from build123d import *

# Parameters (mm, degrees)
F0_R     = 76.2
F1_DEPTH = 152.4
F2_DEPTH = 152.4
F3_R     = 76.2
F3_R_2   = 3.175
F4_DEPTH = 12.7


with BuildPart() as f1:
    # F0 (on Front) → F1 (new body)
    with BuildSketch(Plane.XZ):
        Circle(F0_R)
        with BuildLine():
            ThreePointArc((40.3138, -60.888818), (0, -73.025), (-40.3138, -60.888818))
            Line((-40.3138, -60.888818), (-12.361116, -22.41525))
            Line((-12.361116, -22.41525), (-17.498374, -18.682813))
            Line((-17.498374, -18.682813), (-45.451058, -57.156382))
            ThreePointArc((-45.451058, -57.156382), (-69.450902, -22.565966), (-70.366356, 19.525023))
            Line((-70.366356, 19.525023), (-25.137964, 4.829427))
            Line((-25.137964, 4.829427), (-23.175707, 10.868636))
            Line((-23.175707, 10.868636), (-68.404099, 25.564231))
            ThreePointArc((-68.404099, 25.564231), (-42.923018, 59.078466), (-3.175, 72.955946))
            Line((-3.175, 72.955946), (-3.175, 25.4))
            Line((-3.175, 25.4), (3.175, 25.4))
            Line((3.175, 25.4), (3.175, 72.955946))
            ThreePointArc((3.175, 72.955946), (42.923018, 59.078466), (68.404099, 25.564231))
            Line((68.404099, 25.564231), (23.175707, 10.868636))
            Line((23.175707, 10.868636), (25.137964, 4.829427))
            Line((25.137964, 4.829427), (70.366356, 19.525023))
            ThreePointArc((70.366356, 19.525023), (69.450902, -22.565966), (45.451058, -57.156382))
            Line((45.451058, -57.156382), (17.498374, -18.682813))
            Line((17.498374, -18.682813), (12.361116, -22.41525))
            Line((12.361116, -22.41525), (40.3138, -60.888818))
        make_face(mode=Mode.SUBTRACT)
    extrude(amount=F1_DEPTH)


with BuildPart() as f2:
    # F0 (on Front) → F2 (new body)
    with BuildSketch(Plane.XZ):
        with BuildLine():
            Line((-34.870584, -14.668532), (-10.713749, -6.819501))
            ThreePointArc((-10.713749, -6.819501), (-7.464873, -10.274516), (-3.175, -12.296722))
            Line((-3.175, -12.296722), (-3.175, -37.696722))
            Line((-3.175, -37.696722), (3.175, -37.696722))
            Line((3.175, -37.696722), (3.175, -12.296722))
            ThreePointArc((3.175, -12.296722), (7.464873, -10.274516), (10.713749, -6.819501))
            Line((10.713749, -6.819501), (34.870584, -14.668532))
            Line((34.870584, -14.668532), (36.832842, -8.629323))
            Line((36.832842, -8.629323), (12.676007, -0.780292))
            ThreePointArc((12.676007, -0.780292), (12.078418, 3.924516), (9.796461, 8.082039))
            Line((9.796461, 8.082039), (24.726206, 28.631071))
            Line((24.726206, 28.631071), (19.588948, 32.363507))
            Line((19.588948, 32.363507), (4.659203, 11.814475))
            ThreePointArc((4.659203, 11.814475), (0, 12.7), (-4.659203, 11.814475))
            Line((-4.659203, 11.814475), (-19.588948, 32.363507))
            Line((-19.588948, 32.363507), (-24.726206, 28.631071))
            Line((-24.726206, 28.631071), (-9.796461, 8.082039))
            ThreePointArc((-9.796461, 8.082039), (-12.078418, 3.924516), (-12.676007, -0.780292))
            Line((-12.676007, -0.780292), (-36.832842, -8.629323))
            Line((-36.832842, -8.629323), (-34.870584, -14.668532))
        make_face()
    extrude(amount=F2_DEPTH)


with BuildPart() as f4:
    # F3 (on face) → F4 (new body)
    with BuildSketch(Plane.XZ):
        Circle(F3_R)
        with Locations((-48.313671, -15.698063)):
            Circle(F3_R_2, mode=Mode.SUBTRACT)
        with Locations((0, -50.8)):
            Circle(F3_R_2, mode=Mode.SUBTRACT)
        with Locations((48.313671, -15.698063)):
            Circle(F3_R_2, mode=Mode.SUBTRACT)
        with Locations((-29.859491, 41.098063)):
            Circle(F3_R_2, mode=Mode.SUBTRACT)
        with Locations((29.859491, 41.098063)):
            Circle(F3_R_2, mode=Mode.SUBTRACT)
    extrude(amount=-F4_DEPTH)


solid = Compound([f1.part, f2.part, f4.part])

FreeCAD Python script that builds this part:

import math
import FreeCAD as App
import Part
import Sketcher
from FreeCAD import Vector
Q = App.Units.Quantity

doc = App.newDocument("Part")
params = doc.addObject("Spreadsheet::Sheet", "Params")
for row, (alias, value) in enumerate([
    ("sketch1_diameter", "6 in"),
    ("sketch1_radius", "2.875 in"),
    ("sketch1_width", "0.25 in"),
    ("sketch1_length", "0.25 in"),
    ("pad1_length", "6 in"),
    ("sketch2_radius", "0.4999999 in"),
    ("sketch2_radius2", "0.4999998 in"),
    ("sketch2_height", "1 in"),
    ("sketch2_length", "1 in"),
    ("sketch2_width", "0.25 in"),
    ("pad2_length", "6 in"),
    ("sketch3_diameter", "6 in"),
    ("sketch3_diameter2", "0.25 in"),
    ("pad3_length", "0.5 in"),
], start=1):
    params.set(f"A{row}", alias)
    params.set(f"B{row}", "=" + value)
    params.setAlias(f"B{row}", alias)

body = doc.addObject("PartDesign::Body", "Body")

# Sketch on XZ plane
sketch1 = doc.addObject("Sketcher::SketchObject", "Sketch")
body.addObject(sketch1)
sketch1.AttachmentSupport = (doc.XZ_Plane, [""])
sketch1.MapMode = "FlatFace"
sketch1.addGeometry([
    Part.Circle(Vector(0, 0, 0), Vector(0, 0, 1), 76),  # 0
    Part.LineSegment(Vector(12, -22, 0), Vector(40, -61, 0)),  # 1
    Part.ArcOfCircle(Part.Circle(Vector(0, 0, 0), Vector(0, 0, 1), 73), math.radians(-124), math.radians(-56)),  # 2
    Part.LineSegment(Vector(-40, -61, 0), Vector(-12, -22, 0)),  # 3
    Part.LineSegment(Vector(-12, -22, 0), Vector(-17, -19, 0)),  # 4
    Part.LineSegment(Vector(-17, -19, 0), Vector(-45, -57, 0)),  # 5
    Part.ArcOfCircle(Part.Circle(Vector(0, 0, 0), Vector(0, 0, 1), 73), math.radians(164), math.radians(232)),  # 6
    Part.LineSegment(Vector(-70, 20, 0), Vector(-25, 5, 0)),  # 7
    Part.LineSegment(Vector(-25, 5, 0), Vector(-23, 11, 0)),  # 8
    Part.LineSegment(Vector(-23, 11, 0), Vector(-68, 26, 0)),  # 9
    Part.ArcOfCircle(Part.Circle(Vector(0, 0, 0), Vector(0, 0, 1), 73), math.radians(92), math.radians(160)),  # 10
    Part.LineSegment(Vector(-3, 73, 0), Vector(-3, 25, 0)),  # 11
    Part.LineSegment(Vector(-3, 25, 0), Vector(3, 25, 0)),  # 12
    Part.LineSegment(Vector(3, 25, 0), Vector(3, 73, 0)),  # 13
    Part.ArcOfCircle(Part.Circle(Vector(0, 0, 0), Vector(0, 0, 1), 73), math.radians(20), math.radians(88)),  # 14
    Part.LineSegment(Vector(68, 26, 0), Vector(23, 11, 0)),  # 15
    Part.LineSegment(Vector(23, 11, 0), Vector(25, 5, 0)),  # 16
    Part.LineSegment(Vector(25, 5, 0), Vector(70, 20, 0)),  # 17
    Part.ArcOfCircle(Part.Circle(Vector(0, 0, 0), Vector(0, 0, 1), 73), math.radians(-52), math.radians(16)),  # 18
    Part.LineSegment(Vector(45, -57, 0), Vector(17, -19, 0)),  # 19
    Part.LineSegment(Vector(17, -19, 0), Vector(12, -22, 0)),  # 20
], False)
sketch1.addConstraint([
    Sketcher.Constraint("Coincident", 1, 2, 2, 2),
    Sketcher.Constraint("Coincident", 2, 1, 3, 1),
    Sketcher.Constraint("Coincident", 3, 2, 4, 1),
    Sketcher.Constraint("Coincident", 4, 2, 5, 1),
    Sketcher.Constraint("Coincident", 5, 2, 6, 2),
    Sketcher.Constraint("Coincident", 6, 1, 7, 1),
    Sketcher.Constraint("Coincident", 7, 2, 8, 1),
    Sketcher.Constraint("Coincident", 8, 2, 9, 1),
    Sketcher.Constraint("Coincident", 9, 2, 10, 2),
    Sketcher.Constraint("Coincident", 10, 1, 11, 1),
    Sketcher.Constraint("Coincident", 11, 2, 12, 1),
    Sketcher.Constraint("Coincident", 12, 2, 13, 1),
    Sketcher.Constraint("Coincident", 13, 2, 14, 2),
    Sketcher.Constraint("Coincident", 14, 1, 15, 1),
    Sketcher.Constraint("Coincident", 15, 2, 16, 1),
    Sketcher.Constraint("Coincident", 16, 2, 17, 1),
    Sketcher.Constraint("Coincident", 17, 2, 18, 2),
    Sketcher.Constraint("Coincident", 18, 1, 19, 1),
    Sketcher.Constraint("Coincident", 19, 2, 20, 1),
    Sketcher.Constraint("Coincident", 20, 2, 1, 1),
    Sketcher.Constraint("Vertical", 11),
    Sketcher.Constraint("Horizontal", 12),
    Sketcher.Constraint("Vertical", 13),
    Sketcher.Constraint("Coincident", 0, 3, -1, 1),
    Sketcher.Constraint("Coincident", 2, 3, -1, 1),
    Sketcher.Constraint("Coincident", 6, 3, -1, 1),
    Sketcher.Constraint("Coincident", 10, 3, -1, 1),
    Sketcher.Constraint("Coincident", 14, 3, -1, 1),
    Sketcher.Constraint("Coincident", 18, 3, -1, 1),
    Sketcher.Constraint("Equal", 2, 6),
    Sketcher.Constraint("Equal", 6, 10),
    Sketcher.Constraint("Equal", 10, 14),
    Sketcher.Constraint("Equal", 14, 18),
    Sketcher.Constraint("Symmetric", 8, 2, 15, 2, -2),
    Sketcher.Constraint("Symmetric", 7, 2, 16, 2, -2),
    Sketcher.Constraint("Symmetric", 4, 2, 19, 2, -2),
    Sketcher.Constraint("Symmetric", 3, 2, 20, 2, -2),
    Sketcher.Constraint("Perpendicular", 3, 4),
    Sketcher.Constraint("Perpendicular", 4, 5),
    Sketcher.Constraint("Perpendicular", 7, 8),
    Sketcher.Constraint("Perpendicular", 8, 9),
    Sketcher.Constraint("Perpendicular", 15, 16),
    Sketcher.Constraint("Perpendicular", 16, 17),
    Sketcher.Constraint("Parallel", 1, 19),
    Sketcher.Constraint("Perpendicular", 19, 20),
    Sketcher.Constraint("Horizontal", 10, 1, 13, 2),
    Sketcher.Constraint("Equal", 3, 5),
    Sketcher.Constraint("Equal", 5, 7),
    Sketcher.Constraint("Equal", 4, 8),
    Sketcher.Constraint("Equal", 7, 9),
    Sketcher.Constraint("Diameter", 0, Q("6 in")),
    Sketcher.Constraint("DistanceY", -1, 1, 11, 2, Q("1 in")),
    Sketcher.Constraint("Angle", 1, Q("-53.999999 deg")),
    Sketcher.Constraint("Angle", 7, Q("-18.000001 deg")),
    Sketcher.Constraint("Radius", 2, Q("2.875 in")),
    Sketcher.Constraint("DistanceX", 12, 1, 12, 2, Q("0.25 in")),
    Sketcher.Constraint("Distance", 4, Q("0.25 in")),
    Sketcher.Constraint("DistanceY", 3, 2, -1, 1, 22.41525),
])
sketch1.setExpression("Constraints[50]", "Params.sketch1_diameter")
sketch1.setExpression("Constraints[54]", "Params.sketch1_radius")
sketch1.setExpression("Constraints[55]", "Params.sketch1_width")
sketch1.setExpression("Constraints[56]", "Params.sketch1_length")
pad1 = doc.addObject("PartDesign::Pad", "Pad")
body.addObject(pad1)
pad1.Profile = sketch1
pad1.setExpression("Length", "Params.pad1_length")
body2 = doc.addObject("PartDesign::Body", "Body001")

# Sketch on XZ plane
sketch2 = doc.addObject("Sketcher::SketchObject", "Sketch001")
body2.addObject(sketch2)
sketch2.AttachmentSupport = (doc.getObject("XZ_Plane001"), [""])
sketch2.MapMode = "FlatFace"
sketch2.addGeometry([
    Part.LineSegment(Vector(-35, -15, 0), Vector(-11, -7, 0)),  # 0
    Part.ArcOfCircle(Part.Circle(Vector(0, 0, 0), Vector(0, 0, 1), 13), math.radians(-148), math.radians(-104)),  # 1
    Part.LineSegment(Vector(-3, -12, 0), Vector(-3, -38, 0)),  # 2
    Part.LineSegment(Vector(-3, -38, 0), Vector(3, -38, 0)),  # 3
    Part.LineSegment(Vector(3, -38, 0), Vector(3, -12, 0)),  # 4
    Part.ArcOfCircle(Part.Circle(Vector(0, 0, 0), Vector(0, 0, 1), 13), math.radians(-76), math.radians(-32)),  # 5
    Part.LineSegment(Vector(11, -7, 0), Vector(35, -15, 0)),  # 6
    Part.LineSegment(Vector(35, -15, 0), Vector(37, -9, 0)),  # 7
    Part.LineSegment(Vector(37, -9, 0), Vector(13, -1, 0)),  # 8
    Part.ArcOfCircle(Part.Circle(Vector(0, 0, 0), Vector(0, 0, 1), 13), math.radians(-4), math.radians(40)),  # 9
    Part.LineSegment(Vector(10, 8, 0), Vector(25, 29, 0)),  # 10
    Part.LineSegment(Vector(25, 29, 0), Vector(20, 32, 0)),  # 11
    Part.LineSegment(Vector(20, 32, 0), Vector(5, 12, 0)),  # 12
    Part.ArcOfCircle(Part.Circle(Vector(0, 0, 0), Vector(0, 0, 1), 13), math.radians(68), math.radians(112)),  # 13
    Part.LineSegment(Vector(-5, 12, 0), Vector(-20, 32, 0)),  # 14
    Part.LineSegment(Vector(-20, 32, 0), Vector(-25, 29, 0)),  # 15
    Part.LineSegment(Vector(-25, 29, 0), Vector(-10, 8, 0)),  # 16
    Part.ArcOfCircle(Part.Circle(Vector(0, 0, 0), Vector(0, 0, 1), 13), math.radians(140), math.radians(184)),  # 17
    Part.LineSegment(Vector(-13, -1, 0), Vector(-37, -9, 0)),  # 18
    Part.LineSegment(Vector(-37, -9, 0), Vector(-35, -15, 0)),  # 19
], False)
sketch2.addConstraint([
    Sketcher.Constraint("Coincident", 0, 2, 1, 1),
    Sketcher.Constraint("Coincident", 1, 2, 2, 1),
    Sketcher.Constraint("Coincident", 2, 2, 3, 1),
    Sketcher.Constraint("Coincident", 3, 2, 4, 1),
    Sketcher.Constraint("Coincident", 4, 2, 5, 1),
    Sketcher.Constraint("Coincident", 5, 2, 6, 1),
    Sketcher.Constraint("Coincident", 6, 2, 7, 1),
    Sketcher.Constraint("Coincident", 7, 2, 8, 1),
    Sketcher.Constraint("Coincident", 8, 2, 9, 1),
    Sketcher.Constraint("Coincident", 9, 2, 10, 1),
    Sketcher.Constraint("Coincident", 10, 2, 11, 1),
    Sketcher.Constraint("Coincident", 11, 2, 12, 1),
    Sketcher.Constraint("Coincident", 12, 2, 13, 1),
    Sketcher.Constraint("Coincident", 13, 2, 14, 1),
    Sketcher.Constraint("Coincident", 14, 2, 15, 1),
    Sketcher.Constraint("Coincident", 15, 2, 16, 1),
    Sketcher.Constraint("Coincident", 16, 2, 17, 1),
    Sketcher.Constraint("Coincident", 17, 2, 18, 1),
    Sketcher.Constraint("Coincident", 18, 2, 19, 1),
    Sketcher.Constraint("Coincident", 19, 2, 0, 1),
    Sketcher.Constraint("Vertical", 2),
    Sketcher.Constraint("Horizontal", 3),
    Sketcher.Constraint("Vertical", 4),
    Sketcher.Constraint("Coincident", 1, 3, -1, 1),
    Sketcher.Constraint("Coincident", 5, 3, -1, 1),
    Sketcher.Constraint("Coincident", 9, 3, -1, 1),
    Sketcher.Constraint("Coincident", 13, 3, -1, 1),
    Sketcher.Constraint("Coincident", 17, 3, -1, 1),
    Sketcher.Constraint("Equal", 1, 5),
    Sketcher.Constraint("Equal", 5, 9),
    Sketcher.Constraint("Equal", 9, 17),
    Sketcher.Constraint("Symmetric", 11, 2, 14, 2, -2),
    Sketcher.Constraint("Symmetric", 10, 2, 15, 2, -2),
    Sketcher.Constraint("Symmetric", 7, 2, 18, 2, -2),
    Sketcher.Constraint("Symmetric", 6, 2, 19, 2, -2),
    Sketcher.Constraint("Perpendicular", 6, 7),
    Sketcher.Constraint("Perpendicular", 7, 8),
    Sketcher.Constraint("Perpendicular", 10, 11),
    Sketcher.Constraint("Perpendicular", 11, 12),
    Sketcher.Constraint("Perpendicular", 14, 15),
    Sketcher.Constraint("Perpendicular", 15, 16),
    Sketcher.Constraint("Parallel", 0, 18),
    Sketcher.Constraint("Perpendicular", 18, 19),
    Sketcher.Constraint("Horizontal", 1, 2, 4, 2),
    Sketcher.Constraint("Equal", 6, 8),
    Sketcher.Constraint("Equal", 8, 10),
    Sketcher.Constraint("Equal", 7, 11),
    Sketcher.Constraint("Equal", 10, 12),
    Sketcher.Constraint("Radius", 1, Q("0.4999999 in")),
    Sketcher.Constraint("Radius", 13, Q("0.4999998 in")),
    Sketcher.Constraint("DistanceY", 2, 2, 2, 1, Q("1 in")),
    Sketcher.Constraint("Distance", 0, Q("1 in")),
    Sketcher.Constraint("Angle", 0, Q("17.999999 deg")),
    Sketcher.Constraint("Angle", 10, Q("54.000001 deg")),
    Sketcher.Constraint("DistanceX", 3, 1, 3, 2, Q("0.25 in")),
    Sketcher.Constraint("Distance", 7, Q("0.25 in")),
])
sketch2.setExpression("Constraints[48]", "Params.sketch2_radius")
sketch2.setExpression("Constraints[49]", "Params.sketch2_radius2")
sketch2.setExpression("Constraints[50]", "Params.sketch2_height")
sketch2.setExpression("Constraints[51]", "Params.sketch2_length")
sketch2.setExpression("Constraints[54]", "Params.sketch2_width")
pad2 = doc.addObject("PartDesign::Pad", "Pad001")
body2.addObject(pad2)
pad2.Profile = sketch2
pad2.setExpression("Length", "Params.pad2_length")
body3 = doc.addObject("PartDesign::Body", "Body002")

# Sketch on XZ plane
sketch3 = doc.addObject("Sketcher::SketchObject", "Sketch002")
body3.addObject(sketch3)
sketch3.AttachmentSupport = (doc.getObject("XZ_Plane002"), [""])
sketch3.MapMode = "FlatFace"
sketch3.addGeometry([
    Part.Circle(Vector(0, 0, 0), Vector(0, 0, 1), 76.2),  # 0
    Part.Circle(Vector(-48.3, -15.7, 0), Vector(0, 0, 1), 3.2),  # 1
    Part.Circle(Vector(0, -50.8, 0), Vector(0, 0, 1), 3.2),  # 2
    Part.Circle(Vector(48.3, -15.7, 0), Vector(0, 0, 1), 3.2),  # 3
    Part.Circle(Vector(-29.9, 41.1, 0), Vector(0, 0, 1), 3.2),  # 4
    Part.Circle(Vector(29.9, 41.1, 0), Vector(0, 0, 1), 3.2),  # 5
], False)
sketch3.addConstraint([
    Sketcher.Constraint("Coincident", 0, 3, -1, 1),
    Sketcher.Constraint("Equal", 1, 2),
    Sketcher.Constraint("Equal", 2, 3),
    Sketcher.Constraint("Equal", 3, 4),
    Sketcher.Constraint("Equal", 4, 5),
    Sketcher.Constraint("Symmetric", 1, 3, 3, 3, -2),
    Sketcher.Constraint("Symmetric", 4, 3, 5, 3, -2),
    Sketcher.Constraint("PointOnObject", 2, 3, -2),
    Sketcher.Constraint("Diameter", 0, Q("6 in")),
    Sketcher.Constraint("Diameter", 1, Q("0.25 in")),
    Sketcher.Constraint("DistanceY", 2, 3, -1, 1, Q("2 in")),
    Sketcher.Constraint("DistanceX", 1, 3, -1, 1, 48.313671),
    Sketcher.Constraint("DistanceX", 4, 3, -1, 1, 29.859491),
    Sketcher.Constraint("DistanceY", 1, 3, -1, 1, 15.698063),
    Sketcher.Constraint("DistanceY", -1, 1, 4, 3, 41.098063),
])
sketch3.setExpression("Constraints[8]", "Params.sketch3_diameter")
sketch3.setExpression("Constraints[9]", "Params.sketch3_diameter2")
pad3 = doc.addObject("PartDesign::Pad", "Pad002")
body3.addObject(pad3)
pad3.Profile = sketch3
pad3.setExpression("Length", "Params.pad3_length")
pad3.Reversed = True

doc.recompute()
